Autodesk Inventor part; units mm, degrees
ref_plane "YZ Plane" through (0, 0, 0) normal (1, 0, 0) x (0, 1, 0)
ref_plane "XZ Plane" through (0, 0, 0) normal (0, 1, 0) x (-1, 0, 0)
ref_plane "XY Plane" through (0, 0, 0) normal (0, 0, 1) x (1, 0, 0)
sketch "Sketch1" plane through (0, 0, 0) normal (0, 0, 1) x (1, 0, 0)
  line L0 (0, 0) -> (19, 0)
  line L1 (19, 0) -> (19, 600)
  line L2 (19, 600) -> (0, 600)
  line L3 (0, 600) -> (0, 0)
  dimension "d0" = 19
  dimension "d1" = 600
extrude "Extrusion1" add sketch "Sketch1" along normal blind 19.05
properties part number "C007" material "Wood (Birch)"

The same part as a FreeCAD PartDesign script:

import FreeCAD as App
import Part
import Sketcher

V = App.Vector
Q = App.Units.Quantity

doc = App.newDocument("Part")
body = doc.addObject("PartDesign::Body", "Body")

# Sketch on XY plane
sketch1 = body.newObject("Sketcher::SketchObject", "Sketch")
sketch1.AttachmentSupport = (doc.getObject("XY_Plane"), [""])
sketch1.MapMode = "FlatFace"
sketch1.addGeometry([
    Part.LineSegment(V(0, 600, 0), V(0, 0, 0)),
    Part.LineSegment(V(0, 0, 0), V(19, 0, 0)),
    Part.LineSegment(V(19, 0, 0), V(19, 600, 0)),
    Part.LineSegment(V(19, 600, 0), V(0, 600, 0)),
], False)
sketch1.addConstraint([
    Sketcher.Constraint("Coincident", 0, 2, 1, 1),
    Sketcher.Constraint("Coincident", 1, 2, 2, 1),
    Sketcher.Constraint("Coincident", 2, 2, 3, 1),
    Sketcher.Constraint("Coincident", 3, 2, 0, 1),
    Sketcher.Constraint("Vertical", 0),
    Sketcher.Constraint("Horizontal", 1),
    Sketcher.Constraint("Vertical", 2),
    Sketcher.Constraint("Horizontal", 3),
    Sketcher.Constraint("Coincident", 0, 2, -1, 1),
    Sketcher.Constraint("DistanceX", 1, 1, 1, 2, Q("19 mm")),
    Sketcher.Constraint("DistanceY", 0, 2, 0, 1, Q("600 mm")),
])
pad1 = body.newObject("PartDesign::Pad", "Pad")
pad1.Profile = sketch1
pad1.Length = 19.05

doc.recompute()
